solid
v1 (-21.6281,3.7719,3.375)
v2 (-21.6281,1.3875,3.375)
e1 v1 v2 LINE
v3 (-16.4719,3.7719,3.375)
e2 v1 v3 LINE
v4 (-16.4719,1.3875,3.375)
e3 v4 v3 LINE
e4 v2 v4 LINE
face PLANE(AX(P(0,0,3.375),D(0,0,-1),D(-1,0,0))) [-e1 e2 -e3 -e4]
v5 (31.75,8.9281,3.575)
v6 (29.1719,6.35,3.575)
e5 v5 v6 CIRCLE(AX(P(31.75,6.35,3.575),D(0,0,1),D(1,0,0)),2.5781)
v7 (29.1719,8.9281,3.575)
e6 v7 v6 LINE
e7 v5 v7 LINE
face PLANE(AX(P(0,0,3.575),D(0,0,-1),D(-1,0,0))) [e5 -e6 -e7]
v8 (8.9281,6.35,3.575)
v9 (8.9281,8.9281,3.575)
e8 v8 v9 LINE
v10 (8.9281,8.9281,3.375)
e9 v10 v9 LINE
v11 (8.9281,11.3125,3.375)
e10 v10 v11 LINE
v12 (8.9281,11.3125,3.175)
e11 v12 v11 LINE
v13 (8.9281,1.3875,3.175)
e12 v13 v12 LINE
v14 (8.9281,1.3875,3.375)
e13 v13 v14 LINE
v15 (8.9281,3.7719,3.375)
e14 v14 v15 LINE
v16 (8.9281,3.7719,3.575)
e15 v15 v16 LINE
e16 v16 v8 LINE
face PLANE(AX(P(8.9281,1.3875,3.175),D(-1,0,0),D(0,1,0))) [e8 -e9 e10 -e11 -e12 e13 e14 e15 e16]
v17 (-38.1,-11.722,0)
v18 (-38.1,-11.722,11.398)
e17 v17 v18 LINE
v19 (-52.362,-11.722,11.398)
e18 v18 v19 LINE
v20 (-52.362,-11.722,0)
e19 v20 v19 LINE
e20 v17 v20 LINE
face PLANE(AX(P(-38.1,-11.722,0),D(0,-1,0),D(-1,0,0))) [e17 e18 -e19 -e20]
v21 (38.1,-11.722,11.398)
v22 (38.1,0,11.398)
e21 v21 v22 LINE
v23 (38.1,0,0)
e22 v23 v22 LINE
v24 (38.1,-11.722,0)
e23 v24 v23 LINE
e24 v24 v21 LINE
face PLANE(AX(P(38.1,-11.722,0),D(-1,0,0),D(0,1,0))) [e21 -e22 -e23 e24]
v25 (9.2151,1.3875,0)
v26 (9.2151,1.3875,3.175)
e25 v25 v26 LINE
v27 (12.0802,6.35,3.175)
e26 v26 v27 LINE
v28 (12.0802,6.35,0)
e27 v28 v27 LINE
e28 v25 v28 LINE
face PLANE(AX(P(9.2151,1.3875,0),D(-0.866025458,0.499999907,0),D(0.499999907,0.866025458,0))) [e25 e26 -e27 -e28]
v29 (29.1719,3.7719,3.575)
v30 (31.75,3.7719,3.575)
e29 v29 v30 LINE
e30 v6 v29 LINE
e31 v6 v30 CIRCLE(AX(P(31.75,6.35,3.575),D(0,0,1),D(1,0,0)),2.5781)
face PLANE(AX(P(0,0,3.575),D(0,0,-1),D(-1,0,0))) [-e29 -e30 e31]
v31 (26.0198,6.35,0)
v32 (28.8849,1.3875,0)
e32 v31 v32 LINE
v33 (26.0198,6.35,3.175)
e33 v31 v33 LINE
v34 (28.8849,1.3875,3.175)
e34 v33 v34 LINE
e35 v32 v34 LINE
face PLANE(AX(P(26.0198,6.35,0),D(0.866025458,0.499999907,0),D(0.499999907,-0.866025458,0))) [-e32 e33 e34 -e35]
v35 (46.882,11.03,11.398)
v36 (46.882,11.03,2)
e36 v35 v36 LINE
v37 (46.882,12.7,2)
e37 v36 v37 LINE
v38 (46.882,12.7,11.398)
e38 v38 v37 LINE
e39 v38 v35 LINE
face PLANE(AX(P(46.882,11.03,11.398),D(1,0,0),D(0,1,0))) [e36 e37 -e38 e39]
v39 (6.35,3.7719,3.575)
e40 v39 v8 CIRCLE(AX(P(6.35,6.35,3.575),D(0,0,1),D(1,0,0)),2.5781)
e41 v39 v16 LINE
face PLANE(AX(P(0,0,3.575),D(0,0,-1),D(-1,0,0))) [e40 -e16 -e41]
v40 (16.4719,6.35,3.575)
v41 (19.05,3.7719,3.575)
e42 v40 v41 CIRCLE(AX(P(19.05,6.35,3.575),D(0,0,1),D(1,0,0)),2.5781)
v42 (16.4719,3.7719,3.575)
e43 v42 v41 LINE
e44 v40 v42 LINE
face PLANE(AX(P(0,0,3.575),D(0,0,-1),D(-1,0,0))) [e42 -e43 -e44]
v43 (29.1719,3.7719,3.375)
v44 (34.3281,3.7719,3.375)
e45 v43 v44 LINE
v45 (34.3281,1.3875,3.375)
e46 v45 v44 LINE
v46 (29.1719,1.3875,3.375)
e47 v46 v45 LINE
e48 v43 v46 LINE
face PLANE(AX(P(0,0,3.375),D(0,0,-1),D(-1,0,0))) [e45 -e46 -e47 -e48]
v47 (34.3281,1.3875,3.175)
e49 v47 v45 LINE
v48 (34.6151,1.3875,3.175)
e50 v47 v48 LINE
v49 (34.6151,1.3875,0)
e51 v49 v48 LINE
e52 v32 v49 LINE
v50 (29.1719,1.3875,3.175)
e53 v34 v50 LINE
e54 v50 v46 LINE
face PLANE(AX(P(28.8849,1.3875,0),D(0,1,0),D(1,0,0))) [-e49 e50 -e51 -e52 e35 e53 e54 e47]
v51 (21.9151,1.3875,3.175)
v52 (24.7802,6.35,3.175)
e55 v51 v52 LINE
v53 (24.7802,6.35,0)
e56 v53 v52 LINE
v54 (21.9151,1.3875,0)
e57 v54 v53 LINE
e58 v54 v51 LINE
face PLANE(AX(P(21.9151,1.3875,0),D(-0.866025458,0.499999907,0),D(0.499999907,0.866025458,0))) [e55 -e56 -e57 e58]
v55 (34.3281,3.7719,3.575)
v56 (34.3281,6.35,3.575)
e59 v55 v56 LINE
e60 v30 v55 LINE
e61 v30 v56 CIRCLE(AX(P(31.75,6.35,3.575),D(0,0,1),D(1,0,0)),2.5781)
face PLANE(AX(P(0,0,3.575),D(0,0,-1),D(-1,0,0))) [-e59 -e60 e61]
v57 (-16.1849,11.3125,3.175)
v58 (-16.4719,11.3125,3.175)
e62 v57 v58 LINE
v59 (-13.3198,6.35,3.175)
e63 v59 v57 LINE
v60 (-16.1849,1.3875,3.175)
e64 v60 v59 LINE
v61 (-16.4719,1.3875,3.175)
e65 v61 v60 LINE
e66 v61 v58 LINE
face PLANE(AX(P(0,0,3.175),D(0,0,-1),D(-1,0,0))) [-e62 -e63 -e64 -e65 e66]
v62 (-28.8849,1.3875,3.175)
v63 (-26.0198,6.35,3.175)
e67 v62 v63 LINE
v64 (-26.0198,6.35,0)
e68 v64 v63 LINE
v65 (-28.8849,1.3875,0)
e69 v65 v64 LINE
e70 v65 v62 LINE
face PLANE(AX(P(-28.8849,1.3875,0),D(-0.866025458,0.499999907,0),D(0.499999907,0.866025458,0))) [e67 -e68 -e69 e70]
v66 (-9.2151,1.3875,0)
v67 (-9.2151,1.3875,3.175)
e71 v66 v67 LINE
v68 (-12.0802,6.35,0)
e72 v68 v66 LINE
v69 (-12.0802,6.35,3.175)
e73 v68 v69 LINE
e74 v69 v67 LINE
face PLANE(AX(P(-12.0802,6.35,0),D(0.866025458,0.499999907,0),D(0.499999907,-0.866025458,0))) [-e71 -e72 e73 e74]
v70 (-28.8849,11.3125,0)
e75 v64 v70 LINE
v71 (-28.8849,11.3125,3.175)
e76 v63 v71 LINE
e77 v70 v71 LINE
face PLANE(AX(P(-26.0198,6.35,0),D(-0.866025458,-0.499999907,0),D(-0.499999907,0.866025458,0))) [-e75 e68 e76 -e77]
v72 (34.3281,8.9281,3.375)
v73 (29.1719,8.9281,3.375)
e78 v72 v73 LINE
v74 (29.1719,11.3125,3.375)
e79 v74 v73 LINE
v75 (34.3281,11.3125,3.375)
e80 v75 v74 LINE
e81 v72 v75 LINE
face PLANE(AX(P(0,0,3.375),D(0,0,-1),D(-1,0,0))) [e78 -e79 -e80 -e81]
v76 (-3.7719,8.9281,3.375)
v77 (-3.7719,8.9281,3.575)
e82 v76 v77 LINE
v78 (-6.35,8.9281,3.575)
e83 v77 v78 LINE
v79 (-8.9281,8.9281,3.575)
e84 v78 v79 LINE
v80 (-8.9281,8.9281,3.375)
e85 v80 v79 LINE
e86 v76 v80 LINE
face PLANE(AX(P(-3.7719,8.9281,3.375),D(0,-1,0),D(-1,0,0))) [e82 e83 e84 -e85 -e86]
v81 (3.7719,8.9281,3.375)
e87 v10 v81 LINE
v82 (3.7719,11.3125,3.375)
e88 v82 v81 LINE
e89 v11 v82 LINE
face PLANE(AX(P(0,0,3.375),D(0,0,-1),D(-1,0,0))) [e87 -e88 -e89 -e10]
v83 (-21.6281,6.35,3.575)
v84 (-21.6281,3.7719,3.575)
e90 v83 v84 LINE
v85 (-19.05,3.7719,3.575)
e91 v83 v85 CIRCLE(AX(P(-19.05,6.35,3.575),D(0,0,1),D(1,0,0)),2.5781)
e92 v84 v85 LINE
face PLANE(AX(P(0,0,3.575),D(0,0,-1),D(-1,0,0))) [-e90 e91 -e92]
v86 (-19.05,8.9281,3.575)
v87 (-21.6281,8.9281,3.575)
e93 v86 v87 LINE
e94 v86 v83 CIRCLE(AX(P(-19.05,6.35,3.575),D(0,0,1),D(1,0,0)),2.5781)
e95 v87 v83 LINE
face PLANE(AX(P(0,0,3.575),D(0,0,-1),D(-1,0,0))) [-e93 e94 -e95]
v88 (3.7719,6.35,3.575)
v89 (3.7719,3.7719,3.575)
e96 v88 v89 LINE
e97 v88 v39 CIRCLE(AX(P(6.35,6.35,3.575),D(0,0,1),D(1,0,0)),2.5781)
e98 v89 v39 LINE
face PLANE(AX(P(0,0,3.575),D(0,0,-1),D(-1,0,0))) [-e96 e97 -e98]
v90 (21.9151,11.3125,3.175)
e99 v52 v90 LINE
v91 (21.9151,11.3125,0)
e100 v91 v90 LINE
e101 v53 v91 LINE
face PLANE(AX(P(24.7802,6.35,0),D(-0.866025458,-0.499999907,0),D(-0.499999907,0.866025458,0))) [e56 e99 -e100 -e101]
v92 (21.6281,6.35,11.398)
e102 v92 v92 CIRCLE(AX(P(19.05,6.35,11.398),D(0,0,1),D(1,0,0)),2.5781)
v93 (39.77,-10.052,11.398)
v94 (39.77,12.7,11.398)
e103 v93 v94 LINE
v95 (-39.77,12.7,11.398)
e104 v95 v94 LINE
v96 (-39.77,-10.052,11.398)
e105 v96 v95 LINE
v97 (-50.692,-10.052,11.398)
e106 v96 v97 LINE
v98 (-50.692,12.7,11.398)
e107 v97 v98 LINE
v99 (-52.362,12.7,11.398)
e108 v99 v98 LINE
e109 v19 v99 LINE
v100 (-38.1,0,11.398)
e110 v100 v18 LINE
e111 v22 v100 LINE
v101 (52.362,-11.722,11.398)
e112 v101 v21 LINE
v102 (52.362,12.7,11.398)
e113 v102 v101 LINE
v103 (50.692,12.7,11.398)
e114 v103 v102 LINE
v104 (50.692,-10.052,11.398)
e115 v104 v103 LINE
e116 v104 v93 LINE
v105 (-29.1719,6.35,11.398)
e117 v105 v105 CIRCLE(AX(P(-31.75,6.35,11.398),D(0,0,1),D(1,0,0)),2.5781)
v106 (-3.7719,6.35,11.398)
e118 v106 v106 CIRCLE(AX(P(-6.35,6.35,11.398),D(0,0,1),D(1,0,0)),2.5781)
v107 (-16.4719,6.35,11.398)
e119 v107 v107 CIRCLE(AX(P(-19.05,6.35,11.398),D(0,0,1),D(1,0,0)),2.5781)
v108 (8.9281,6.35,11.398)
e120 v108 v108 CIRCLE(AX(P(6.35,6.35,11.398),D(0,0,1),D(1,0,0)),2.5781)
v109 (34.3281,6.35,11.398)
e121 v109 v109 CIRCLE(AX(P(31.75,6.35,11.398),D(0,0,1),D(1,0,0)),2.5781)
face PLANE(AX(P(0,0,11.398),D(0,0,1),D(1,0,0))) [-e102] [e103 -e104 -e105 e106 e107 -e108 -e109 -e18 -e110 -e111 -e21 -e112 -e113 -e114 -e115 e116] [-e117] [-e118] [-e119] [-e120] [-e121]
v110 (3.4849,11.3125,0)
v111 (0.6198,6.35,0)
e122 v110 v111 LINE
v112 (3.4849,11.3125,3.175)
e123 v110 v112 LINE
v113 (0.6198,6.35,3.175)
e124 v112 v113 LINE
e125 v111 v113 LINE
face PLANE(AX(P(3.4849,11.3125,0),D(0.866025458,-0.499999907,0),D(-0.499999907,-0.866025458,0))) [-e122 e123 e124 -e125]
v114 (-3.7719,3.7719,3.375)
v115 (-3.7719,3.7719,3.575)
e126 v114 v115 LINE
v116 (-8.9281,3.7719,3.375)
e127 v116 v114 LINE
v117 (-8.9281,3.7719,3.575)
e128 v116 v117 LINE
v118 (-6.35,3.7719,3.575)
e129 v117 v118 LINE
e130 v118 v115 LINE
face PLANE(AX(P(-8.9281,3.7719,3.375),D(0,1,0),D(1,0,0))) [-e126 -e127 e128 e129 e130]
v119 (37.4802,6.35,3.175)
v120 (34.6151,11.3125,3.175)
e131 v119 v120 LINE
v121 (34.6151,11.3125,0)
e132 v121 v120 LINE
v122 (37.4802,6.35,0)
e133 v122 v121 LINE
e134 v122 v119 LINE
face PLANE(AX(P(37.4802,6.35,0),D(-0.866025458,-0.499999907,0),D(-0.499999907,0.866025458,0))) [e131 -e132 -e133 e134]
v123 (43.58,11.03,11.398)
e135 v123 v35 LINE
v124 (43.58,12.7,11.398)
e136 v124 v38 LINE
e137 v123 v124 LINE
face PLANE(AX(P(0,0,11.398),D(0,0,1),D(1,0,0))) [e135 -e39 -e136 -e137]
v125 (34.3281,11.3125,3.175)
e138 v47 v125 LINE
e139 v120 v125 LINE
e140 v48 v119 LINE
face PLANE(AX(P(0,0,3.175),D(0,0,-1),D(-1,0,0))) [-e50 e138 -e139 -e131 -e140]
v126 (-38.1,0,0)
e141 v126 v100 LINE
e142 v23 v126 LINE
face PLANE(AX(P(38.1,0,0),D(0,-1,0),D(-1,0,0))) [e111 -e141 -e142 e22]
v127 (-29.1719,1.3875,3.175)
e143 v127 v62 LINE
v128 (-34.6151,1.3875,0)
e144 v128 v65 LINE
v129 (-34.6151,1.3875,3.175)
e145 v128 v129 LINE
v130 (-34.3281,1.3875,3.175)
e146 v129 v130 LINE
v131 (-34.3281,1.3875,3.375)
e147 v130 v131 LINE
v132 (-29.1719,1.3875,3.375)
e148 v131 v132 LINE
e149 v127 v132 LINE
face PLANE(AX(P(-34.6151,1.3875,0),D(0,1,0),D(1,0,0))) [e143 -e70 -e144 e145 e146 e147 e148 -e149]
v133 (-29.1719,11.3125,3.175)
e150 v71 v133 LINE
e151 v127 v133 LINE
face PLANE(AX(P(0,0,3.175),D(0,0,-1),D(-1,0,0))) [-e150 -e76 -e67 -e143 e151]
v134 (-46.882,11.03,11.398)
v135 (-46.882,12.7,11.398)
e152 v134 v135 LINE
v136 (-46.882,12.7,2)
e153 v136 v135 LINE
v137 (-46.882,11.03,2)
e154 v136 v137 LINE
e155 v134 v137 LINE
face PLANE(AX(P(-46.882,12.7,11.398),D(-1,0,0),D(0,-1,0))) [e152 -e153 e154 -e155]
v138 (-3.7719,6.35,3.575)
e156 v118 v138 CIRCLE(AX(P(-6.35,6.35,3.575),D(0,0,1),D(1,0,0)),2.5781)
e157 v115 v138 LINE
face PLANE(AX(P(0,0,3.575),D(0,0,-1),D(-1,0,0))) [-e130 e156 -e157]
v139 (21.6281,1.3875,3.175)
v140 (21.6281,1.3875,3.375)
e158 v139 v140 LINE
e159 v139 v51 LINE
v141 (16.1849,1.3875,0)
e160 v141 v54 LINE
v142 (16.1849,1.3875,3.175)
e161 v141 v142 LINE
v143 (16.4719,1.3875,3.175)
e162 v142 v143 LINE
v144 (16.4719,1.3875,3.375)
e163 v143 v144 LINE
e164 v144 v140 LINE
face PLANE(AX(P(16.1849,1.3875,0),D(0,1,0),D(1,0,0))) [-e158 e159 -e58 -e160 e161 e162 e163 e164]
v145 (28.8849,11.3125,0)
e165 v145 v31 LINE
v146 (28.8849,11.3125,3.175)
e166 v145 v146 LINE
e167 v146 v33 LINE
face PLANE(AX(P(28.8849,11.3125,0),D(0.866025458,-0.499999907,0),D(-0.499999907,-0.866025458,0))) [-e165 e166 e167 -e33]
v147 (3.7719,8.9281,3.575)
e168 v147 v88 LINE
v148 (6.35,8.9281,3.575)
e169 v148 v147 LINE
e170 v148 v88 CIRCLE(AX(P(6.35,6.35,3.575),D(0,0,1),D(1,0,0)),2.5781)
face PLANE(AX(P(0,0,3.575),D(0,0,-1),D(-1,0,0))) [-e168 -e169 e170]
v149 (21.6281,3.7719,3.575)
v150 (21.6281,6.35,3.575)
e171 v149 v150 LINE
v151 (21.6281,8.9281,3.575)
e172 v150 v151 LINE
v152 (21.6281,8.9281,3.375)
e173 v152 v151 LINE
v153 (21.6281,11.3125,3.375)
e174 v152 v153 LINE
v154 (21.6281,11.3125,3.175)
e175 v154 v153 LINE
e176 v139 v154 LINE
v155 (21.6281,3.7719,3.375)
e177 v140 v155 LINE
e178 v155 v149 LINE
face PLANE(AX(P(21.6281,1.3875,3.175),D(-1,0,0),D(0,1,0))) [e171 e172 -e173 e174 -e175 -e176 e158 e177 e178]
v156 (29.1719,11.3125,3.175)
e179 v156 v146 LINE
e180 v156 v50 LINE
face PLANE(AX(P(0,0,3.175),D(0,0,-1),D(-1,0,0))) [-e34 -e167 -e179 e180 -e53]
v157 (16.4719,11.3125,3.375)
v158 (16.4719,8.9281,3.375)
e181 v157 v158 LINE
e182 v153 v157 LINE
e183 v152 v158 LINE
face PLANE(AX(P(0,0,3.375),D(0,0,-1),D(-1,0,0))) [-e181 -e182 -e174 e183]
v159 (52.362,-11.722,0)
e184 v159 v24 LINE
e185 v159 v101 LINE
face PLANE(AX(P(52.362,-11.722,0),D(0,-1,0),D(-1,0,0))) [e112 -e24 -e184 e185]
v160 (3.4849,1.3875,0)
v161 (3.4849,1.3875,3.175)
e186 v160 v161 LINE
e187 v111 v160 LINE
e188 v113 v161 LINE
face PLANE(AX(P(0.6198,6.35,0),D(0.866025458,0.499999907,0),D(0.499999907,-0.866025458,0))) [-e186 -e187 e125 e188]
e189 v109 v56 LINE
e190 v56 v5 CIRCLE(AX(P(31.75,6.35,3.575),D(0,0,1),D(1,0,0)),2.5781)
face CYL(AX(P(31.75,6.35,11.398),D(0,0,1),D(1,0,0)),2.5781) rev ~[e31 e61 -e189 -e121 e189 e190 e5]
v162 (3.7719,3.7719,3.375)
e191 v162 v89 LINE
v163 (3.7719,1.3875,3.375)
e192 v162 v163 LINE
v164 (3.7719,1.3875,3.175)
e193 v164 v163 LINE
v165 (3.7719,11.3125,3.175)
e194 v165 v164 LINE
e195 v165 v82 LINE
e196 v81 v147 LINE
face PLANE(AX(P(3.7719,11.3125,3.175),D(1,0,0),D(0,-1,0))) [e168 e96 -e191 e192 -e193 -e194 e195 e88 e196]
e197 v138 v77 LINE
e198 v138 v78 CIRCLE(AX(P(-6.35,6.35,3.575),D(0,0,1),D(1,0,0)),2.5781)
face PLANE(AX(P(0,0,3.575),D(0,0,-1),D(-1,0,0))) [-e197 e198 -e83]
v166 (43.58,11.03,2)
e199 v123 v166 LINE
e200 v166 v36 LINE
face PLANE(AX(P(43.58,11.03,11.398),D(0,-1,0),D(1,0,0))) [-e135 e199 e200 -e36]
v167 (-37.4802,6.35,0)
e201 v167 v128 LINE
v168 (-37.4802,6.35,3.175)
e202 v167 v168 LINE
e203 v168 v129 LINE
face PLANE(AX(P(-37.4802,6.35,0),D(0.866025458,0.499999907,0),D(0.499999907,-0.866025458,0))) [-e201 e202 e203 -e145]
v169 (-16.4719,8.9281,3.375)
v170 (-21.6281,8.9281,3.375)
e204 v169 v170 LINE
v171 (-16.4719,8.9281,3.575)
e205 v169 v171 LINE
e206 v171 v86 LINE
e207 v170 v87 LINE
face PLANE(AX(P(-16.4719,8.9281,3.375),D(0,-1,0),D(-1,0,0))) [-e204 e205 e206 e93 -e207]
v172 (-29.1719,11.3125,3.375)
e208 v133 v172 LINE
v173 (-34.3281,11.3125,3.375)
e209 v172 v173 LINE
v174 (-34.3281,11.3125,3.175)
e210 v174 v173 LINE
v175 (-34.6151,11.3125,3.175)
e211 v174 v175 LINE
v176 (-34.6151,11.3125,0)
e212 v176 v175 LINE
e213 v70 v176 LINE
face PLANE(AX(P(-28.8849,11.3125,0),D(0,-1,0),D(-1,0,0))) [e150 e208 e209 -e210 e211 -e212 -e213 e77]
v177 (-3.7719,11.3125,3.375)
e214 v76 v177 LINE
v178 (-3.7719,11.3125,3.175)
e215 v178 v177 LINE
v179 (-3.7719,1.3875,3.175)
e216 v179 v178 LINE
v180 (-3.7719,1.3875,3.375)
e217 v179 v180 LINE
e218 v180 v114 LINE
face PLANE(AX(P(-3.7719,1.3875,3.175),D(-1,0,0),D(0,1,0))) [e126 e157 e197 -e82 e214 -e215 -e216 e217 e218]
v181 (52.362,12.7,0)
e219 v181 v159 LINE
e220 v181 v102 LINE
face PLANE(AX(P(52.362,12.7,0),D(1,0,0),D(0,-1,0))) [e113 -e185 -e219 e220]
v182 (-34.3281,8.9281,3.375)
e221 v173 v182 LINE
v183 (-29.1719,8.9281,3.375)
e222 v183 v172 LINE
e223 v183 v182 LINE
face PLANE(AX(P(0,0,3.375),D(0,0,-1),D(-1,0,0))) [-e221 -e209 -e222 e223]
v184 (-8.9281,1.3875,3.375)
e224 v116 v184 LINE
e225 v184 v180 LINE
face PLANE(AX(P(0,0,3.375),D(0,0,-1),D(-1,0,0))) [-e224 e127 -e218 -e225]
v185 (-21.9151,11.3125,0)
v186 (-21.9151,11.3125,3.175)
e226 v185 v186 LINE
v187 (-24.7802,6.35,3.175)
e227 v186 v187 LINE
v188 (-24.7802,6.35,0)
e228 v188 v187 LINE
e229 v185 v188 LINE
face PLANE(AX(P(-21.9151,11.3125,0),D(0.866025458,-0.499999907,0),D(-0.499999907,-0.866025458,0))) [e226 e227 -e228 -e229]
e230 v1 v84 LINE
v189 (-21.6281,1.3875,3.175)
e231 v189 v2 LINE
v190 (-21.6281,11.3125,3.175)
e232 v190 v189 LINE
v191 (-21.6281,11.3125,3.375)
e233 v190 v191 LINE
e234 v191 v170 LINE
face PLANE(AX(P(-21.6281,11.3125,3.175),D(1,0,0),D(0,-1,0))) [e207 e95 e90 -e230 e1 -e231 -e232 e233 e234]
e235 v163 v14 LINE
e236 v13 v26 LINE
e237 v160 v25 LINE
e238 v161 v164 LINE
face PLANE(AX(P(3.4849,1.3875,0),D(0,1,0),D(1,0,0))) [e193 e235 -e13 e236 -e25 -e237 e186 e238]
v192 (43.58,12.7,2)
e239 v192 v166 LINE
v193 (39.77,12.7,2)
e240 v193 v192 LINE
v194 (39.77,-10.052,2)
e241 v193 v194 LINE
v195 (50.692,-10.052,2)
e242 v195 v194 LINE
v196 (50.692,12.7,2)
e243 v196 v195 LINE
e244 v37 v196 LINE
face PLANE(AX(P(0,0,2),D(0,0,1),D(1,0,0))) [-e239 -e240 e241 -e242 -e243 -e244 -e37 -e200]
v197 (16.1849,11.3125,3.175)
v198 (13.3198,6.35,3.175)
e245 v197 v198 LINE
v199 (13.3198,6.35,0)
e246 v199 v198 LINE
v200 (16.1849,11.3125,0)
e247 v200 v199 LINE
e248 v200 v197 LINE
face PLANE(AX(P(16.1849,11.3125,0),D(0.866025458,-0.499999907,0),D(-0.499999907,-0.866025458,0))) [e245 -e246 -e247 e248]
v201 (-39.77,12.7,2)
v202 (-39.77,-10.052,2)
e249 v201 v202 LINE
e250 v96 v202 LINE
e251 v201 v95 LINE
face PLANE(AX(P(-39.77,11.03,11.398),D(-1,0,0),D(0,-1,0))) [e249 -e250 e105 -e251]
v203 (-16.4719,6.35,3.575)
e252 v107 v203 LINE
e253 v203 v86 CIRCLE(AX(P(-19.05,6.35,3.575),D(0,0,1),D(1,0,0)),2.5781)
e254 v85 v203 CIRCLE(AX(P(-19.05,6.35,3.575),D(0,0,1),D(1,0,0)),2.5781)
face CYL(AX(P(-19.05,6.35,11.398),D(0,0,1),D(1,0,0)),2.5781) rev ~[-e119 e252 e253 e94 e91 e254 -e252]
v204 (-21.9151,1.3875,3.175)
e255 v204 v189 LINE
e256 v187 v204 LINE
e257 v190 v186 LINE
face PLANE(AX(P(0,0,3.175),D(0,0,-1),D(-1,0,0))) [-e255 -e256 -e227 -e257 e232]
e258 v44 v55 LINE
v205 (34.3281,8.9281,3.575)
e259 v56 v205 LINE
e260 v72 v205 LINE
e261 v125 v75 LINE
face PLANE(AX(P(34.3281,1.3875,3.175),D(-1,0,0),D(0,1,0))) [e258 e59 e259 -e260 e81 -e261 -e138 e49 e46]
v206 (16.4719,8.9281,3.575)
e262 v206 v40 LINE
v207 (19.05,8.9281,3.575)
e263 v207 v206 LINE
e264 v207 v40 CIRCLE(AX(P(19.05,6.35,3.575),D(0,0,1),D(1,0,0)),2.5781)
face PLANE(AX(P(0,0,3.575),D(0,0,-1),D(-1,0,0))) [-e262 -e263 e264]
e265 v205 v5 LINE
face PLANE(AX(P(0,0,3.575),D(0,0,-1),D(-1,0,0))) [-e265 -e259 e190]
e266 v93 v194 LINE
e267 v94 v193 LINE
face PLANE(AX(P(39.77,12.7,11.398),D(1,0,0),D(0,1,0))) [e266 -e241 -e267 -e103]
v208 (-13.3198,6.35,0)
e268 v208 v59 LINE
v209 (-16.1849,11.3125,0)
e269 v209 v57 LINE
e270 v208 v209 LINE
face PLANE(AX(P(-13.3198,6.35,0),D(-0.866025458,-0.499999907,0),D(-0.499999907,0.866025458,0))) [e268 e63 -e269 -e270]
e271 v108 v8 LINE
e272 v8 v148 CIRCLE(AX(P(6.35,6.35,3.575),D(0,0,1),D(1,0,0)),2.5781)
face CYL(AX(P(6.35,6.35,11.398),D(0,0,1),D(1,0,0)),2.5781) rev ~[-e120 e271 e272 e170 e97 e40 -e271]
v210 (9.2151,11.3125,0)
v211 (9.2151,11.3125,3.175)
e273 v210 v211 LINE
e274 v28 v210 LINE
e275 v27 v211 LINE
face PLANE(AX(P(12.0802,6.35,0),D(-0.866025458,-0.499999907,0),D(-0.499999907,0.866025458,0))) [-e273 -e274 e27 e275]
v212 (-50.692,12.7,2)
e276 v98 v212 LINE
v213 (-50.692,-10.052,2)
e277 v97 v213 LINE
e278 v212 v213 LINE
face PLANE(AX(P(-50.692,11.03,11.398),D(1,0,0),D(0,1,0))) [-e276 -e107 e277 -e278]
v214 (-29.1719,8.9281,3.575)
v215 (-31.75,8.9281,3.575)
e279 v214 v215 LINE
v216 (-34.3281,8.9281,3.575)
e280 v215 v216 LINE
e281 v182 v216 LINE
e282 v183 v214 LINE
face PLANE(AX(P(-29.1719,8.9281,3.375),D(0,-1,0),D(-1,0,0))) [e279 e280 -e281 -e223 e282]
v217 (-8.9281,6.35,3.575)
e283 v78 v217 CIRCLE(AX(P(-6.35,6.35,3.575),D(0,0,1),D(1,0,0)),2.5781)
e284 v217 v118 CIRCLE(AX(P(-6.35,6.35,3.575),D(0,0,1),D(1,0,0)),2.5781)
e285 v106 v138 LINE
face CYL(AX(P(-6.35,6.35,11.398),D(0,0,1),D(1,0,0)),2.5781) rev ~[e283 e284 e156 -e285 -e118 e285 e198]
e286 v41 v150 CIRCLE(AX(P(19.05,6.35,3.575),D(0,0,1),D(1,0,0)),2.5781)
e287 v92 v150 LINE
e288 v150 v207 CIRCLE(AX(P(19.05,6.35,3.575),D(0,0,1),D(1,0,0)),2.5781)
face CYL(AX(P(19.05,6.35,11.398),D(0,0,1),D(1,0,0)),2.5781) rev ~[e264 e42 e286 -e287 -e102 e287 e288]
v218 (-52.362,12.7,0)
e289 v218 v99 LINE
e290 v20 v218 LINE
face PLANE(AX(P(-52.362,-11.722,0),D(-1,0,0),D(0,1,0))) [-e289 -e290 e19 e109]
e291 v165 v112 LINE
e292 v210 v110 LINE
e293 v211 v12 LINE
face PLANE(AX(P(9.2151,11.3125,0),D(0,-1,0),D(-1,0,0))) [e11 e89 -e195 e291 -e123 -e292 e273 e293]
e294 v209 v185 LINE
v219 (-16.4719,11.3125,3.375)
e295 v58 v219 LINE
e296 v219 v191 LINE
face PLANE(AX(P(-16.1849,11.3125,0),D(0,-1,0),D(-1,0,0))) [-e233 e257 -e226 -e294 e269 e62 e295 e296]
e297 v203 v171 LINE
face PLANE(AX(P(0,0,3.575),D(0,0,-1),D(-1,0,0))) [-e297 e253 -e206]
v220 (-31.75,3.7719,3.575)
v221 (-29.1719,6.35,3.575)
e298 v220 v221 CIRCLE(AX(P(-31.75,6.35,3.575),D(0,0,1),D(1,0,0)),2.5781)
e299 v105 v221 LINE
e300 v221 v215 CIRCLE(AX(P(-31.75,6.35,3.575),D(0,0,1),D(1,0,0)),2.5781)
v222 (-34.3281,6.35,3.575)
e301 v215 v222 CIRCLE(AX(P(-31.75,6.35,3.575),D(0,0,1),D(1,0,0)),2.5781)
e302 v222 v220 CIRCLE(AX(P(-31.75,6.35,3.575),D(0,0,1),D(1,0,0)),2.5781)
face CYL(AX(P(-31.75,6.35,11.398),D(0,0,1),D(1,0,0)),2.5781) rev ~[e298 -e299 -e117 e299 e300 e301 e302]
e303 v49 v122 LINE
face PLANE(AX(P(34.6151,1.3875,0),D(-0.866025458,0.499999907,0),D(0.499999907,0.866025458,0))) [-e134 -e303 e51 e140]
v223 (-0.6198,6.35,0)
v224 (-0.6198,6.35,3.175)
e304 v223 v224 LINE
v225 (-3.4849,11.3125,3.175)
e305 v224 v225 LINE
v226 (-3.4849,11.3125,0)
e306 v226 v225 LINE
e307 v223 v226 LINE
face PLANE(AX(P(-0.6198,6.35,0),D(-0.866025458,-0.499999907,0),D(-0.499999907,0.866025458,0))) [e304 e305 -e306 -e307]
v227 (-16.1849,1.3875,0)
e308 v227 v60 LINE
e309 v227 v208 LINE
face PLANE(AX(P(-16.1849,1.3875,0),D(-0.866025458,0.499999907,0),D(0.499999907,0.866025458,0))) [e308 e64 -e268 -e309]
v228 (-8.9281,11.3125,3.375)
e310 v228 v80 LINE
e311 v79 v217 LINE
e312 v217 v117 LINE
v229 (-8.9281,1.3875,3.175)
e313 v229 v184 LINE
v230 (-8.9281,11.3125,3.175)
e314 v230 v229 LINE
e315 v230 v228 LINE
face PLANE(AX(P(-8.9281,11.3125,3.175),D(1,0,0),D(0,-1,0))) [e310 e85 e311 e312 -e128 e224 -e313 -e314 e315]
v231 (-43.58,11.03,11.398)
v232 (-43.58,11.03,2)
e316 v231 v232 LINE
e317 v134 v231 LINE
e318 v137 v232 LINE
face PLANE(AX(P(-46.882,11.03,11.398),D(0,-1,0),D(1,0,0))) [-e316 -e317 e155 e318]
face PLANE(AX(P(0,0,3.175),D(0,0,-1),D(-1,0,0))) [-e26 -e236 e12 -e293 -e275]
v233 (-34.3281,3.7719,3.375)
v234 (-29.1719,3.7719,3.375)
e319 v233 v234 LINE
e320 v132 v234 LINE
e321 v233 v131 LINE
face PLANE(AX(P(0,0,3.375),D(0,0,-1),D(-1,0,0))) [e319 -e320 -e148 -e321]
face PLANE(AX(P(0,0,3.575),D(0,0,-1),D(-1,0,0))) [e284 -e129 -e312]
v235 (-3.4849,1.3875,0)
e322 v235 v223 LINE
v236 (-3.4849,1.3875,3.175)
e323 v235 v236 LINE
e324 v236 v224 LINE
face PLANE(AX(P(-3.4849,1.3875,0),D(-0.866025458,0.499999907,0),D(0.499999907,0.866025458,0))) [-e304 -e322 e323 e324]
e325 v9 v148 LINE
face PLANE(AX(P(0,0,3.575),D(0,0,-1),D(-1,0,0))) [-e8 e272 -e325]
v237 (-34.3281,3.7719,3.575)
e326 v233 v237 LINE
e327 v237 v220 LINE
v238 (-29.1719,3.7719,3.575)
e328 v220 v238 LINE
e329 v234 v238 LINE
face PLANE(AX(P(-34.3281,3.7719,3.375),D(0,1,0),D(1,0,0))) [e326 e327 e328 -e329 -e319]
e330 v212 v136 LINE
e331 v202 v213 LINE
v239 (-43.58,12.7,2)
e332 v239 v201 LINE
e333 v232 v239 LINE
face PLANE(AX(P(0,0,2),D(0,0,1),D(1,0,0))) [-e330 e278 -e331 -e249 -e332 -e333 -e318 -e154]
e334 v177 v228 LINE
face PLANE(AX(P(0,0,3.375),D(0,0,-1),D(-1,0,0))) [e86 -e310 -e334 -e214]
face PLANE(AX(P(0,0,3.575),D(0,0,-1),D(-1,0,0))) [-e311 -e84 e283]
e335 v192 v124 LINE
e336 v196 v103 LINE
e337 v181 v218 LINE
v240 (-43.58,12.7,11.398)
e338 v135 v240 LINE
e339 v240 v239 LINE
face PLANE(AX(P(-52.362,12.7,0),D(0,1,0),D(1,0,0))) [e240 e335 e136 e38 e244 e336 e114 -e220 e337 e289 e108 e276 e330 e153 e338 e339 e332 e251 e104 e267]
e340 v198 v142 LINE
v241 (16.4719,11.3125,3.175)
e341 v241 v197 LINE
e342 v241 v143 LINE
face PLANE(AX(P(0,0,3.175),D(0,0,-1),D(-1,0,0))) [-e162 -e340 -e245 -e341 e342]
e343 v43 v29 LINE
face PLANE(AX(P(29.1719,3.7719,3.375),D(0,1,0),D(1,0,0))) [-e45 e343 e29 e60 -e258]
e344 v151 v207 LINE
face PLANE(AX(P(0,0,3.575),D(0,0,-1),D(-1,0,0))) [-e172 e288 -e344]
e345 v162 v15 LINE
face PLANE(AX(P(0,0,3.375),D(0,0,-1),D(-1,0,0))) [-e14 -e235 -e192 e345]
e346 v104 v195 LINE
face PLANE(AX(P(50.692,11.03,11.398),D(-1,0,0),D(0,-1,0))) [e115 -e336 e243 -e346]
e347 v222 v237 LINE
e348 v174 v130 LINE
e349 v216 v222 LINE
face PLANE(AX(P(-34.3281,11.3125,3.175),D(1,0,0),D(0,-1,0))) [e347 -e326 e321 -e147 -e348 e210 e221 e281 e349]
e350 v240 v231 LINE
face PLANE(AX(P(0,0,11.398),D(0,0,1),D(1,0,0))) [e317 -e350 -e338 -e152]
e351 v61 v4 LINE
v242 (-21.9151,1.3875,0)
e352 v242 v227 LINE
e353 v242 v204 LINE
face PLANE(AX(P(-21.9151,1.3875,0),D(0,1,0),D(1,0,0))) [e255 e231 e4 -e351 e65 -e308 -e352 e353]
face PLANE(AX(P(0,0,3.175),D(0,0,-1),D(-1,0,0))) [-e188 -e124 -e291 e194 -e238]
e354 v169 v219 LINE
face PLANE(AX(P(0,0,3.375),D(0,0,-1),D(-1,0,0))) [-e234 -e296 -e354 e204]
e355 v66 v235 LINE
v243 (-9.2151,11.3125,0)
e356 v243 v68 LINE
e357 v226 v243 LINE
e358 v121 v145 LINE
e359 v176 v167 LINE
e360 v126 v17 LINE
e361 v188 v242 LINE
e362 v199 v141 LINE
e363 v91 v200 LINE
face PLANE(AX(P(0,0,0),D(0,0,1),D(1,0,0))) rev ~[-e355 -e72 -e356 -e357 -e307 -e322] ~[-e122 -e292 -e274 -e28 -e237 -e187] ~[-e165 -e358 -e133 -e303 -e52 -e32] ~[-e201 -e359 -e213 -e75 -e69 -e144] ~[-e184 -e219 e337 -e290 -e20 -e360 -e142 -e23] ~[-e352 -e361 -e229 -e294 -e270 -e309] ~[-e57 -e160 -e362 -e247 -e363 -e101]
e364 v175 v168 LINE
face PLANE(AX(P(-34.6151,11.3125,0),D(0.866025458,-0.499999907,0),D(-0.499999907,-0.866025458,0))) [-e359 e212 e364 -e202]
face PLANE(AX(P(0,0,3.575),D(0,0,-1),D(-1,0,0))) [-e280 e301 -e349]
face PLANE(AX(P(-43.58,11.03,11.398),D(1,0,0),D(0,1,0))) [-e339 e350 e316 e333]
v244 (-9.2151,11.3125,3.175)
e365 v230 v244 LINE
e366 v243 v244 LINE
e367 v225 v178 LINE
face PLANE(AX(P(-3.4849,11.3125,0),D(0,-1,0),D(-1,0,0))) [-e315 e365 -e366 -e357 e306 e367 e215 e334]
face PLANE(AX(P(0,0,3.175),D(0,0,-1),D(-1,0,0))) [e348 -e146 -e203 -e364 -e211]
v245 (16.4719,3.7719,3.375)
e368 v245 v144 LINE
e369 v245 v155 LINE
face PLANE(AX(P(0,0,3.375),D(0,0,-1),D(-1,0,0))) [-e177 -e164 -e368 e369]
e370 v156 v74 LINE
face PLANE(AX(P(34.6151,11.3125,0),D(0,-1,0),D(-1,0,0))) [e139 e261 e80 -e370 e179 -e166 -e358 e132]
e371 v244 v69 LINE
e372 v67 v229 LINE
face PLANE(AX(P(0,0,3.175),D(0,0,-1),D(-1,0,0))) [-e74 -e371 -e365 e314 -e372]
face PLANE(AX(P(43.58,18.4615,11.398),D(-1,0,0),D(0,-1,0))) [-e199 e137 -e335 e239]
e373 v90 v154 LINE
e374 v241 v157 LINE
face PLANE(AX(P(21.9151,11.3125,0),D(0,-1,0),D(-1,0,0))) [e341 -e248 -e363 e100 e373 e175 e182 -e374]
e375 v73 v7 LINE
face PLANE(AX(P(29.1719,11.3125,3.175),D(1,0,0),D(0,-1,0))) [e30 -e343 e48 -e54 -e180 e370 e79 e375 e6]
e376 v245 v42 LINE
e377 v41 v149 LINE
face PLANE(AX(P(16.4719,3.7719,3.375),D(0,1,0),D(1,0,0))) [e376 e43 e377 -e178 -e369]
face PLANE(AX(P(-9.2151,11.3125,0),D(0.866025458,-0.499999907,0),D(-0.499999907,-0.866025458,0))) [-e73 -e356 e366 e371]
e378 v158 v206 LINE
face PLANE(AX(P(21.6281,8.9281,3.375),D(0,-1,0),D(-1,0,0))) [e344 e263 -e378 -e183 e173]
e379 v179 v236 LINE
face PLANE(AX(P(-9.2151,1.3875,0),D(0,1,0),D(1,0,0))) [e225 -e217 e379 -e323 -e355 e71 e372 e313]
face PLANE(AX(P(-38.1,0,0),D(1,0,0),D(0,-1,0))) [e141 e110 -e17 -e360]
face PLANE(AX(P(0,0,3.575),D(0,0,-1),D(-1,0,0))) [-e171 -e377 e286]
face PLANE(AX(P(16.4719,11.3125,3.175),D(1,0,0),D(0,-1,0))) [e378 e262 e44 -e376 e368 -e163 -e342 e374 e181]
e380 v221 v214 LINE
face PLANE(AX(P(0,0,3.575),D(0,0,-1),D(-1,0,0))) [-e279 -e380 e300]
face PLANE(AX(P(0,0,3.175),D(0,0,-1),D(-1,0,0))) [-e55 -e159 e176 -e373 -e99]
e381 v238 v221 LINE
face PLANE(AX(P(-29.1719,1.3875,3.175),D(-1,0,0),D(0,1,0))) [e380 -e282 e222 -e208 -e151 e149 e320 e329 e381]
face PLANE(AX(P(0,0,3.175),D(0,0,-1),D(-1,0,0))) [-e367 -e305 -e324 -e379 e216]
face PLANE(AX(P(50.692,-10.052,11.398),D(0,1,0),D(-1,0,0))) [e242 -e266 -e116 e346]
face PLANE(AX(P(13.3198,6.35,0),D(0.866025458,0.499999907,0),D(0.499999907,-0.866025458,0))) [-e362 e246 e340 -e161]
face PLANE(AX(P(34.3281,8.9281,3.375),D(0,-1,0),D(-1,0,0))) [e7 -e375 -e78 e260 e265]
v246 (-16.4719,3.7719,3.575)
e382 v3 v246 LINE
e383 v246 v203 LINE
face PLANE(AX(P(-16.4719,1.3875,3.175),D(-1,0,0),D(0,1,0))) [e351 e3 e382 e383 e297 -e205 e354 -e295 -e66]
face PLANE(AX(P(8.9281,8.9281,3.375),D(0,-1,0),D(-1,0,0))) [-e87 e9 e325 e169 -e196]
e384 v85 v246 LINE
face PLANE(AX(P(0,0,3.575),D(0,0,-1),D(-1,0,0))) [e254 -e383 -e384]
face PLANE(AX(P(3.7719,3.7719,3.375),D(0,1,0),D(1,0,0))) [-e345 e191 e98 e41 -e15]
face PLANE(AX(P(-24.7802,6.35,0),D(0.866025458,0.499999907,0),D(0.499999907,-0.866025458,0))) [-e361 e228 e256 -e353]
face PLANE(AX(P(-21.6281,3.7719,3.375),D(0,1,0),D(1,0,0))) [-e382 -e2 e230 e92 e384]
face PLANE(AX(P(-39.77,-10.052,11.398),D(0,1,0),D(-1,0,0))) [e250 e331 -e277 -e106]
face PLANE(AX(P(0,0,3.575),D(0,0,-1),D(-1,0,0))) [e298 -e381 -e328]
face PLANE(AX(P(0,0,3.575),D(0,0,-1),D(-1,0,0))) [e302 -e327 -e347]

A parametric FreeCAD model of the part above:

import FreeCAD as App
import Part
import Sketcher

V = App.Vector
Q = App.Units.Quantity


def add_polygon(sketch, points):
    """Adds a closed chain of lines whose ends are joined by coincident constraints."""
    first, n = sketch.GeometryCount, len(points)
    for a, b in zip(points, points[1:] + points[:1]):
        sketch.addGeometry(Part.LineSegment(App.Vector(*a, 0), App.Vector(*b, 0)), False)
    for i in range(n):
        sketch.addConstraint(Sketcher.Constraint("Coincident", first + i, 2, first + (i + 1) % n, 1))

doc = App.newDocument("Part")
body = doc.addObject("PartDesign::Body", "Body")

# Sketch on XY plane
sketch1 = body.newObject("Sketcher::SketchObject", "Sketch")
sketch1.AttachmentSupport = (doc.getObject("XY_Plane"), [""])
sketch1.MapMode = "FlatFace"
add_polygon(sketch1, [(-52.362, 12.7), (-52.362, -11.722), (-38.1, -11.722), (-38.1, 0), (38.1, 0), (38.1, -11.722), (52.362, -11.722), (52.362, 12.7)])  # lines 0-7
sketch1.addConstraint([
    Sketcher.Constraint("Vertical", 0),
    Sketcher.Constraint("Horizontal", 1),
    Sketcher.Constraint("Vertical", 2),
    Sketcher.Constraint("Horizontal", 3),
    Sketcher.Constraint("Vertical", 4),
    Sketcher.Constraint("Horizontal", 5),
    Sketcher.Constraint("Vertical", 6),
    Sketcher.Constraint("Horizontal", 7),
    Sketcher.Constraint("Symmetric", 2, 2, 3, 2, -1, 1),
    Sketcher.Constraint("Symmetric", 0, 2, 5, 2, -2),
    Sketcher.Constraint("DistanceX", 3, 1, 3, 2, Q("3 in")),
    Sketcher.Constraint("DistanceY", -1, 1, 6, 2, Q("0.5 in")),
    Sketcher.Constraint("DistanceX", 1, 1, 1, 2, Q("0.5615 in")),
    Sketcher.Constraint("DistanceY", 0, 2, 0, 1, Q("0.9615 in")),
])
pad1 = body.newObject("PartDesign::Pad", "Pad")
pad1.Profile = sketch1
pad1.Length = 11.398

# Sketch on XY plane
sketch2 = body.newObject("Sketcher::SketchObject", "Sketch001")
sketch2.AttachmentSupport = (doc.getObject("XY_Plane"), [""])
sketch2.MapMode = "FlatFace"
sketch2.AttachmentOffset = App.Placement(V(0, 0, 11.398), App.Rotation())
add_polygon(sketch2, [(-50.692, -10.052), (-39.77, -10.052), (-39.77, 18.6326), (-43.58, 18.6326), (-43.58, 11.03), (-46.882, 11.03), (-46.882, 18.6326), (-50.692, 18.6326)])  # lines 0-7
add_polygon(sketch2, [(39.77, 18.4615), (39.77, -10.052), (50.692, -10.052), (50.692, 18.4615), (46.882, 18.4615), (46.882, 11.03), (43.58, 11.03), (43.58, 18.4615)])  # lines 8-15
sketch2.addConstraint([
    Sketcher.Constraint("Horizontal", 0),
    Sketcher.Constraint("Vertical", 1),
    Sketcher.Constraint("Horizontal", 2),
    Sketcher.Constraint("Vertical", 3),
    Sketcher.Constraint("Horizontal", 4),
    Sketcher.Constraint("Vertical", 5),
    Sketcher.Constraint("Horizontal", 6),
    Sketcher.Constraint("Vertical", 7),
    Sketcher.Constraint("Vertical", 8),
    Sketcher.Constraint("Horizontal", 9),
    Sketcher.Constraint("Vertical", 10),
    Sketcher.Constraint("Horizontal", 11),
    Sketcher.Constraint("Vertical", 12),
    Sketcher.Constraint("Horizontal", 13),
    Sketcher.Constraint("Vertical", 14),
    Sketcher.Constraint("Horizontal", 15),
    Sketcher.Constraint("Symmetric", 0, 2, 8, 2, -2),
    Sketcher.Constraint("Symmetric", 4, 2, 12, 2, -2),
    Sketcher.Constraint("Horizontal", 2, 2, 5, 2),
    Sketcher.Constraint("Horizontal", 11, 2, 14, 2),
    Sketcher.Constraint("Equal", 2, 6),
    Sketcher.Constraint("Equal", 0, 9),
    Sketcher.Constraint("Equal", 4, 13),
    Sketcher.Constraint("DistanceX", 0, 1, 0, 2, Q("0.43 in")),
    Sketcher.Constraint("DistanceX", 4, 2, 4, 1, Q("0.13 in")),
    Sketcher.Constraint("DistanceY", 0, 2, 3, 2, Q("0.83 in")),
    Sketcher.Constraint("DistanceY", 1, 1, 1, 2, 28.6846),
    Sketcher.Constraint("DistanceY", 8, 2, 8, 1, 28.5135),
    Sketcher.Constraint("DistanceX", 0, 2, 8, 2, Q("3.1315 in")),
    Sketcher.Constraint("DistanceY", 0, 2, -1, 1, 10.052),
])
pocket1 = body.newObject("PartDesign::Pocket", "Pocket")
pocket1.Profile = sketch2
pocket1.Length = Q("0.37 in")

# Sketch on XY plane
sketch3 = body.newObject("Sketcher::SketchObject", "Sketch002")
sketch3.AttachmentSupport = (doc.getObject("XY_Plane"), [""])
sketch3.MapMode = "FlatFace"
sketch3.AttachmentOffset = App.Placement(V(0, 0, 11.398), App.Rotation())
sketch3.addGeometry([
    Part.Circle(V(-31.75, 6.35, 0), V(0, 0, 1), 2.5781),  # 0
    Part.Circle(V(-19.05, 6.35, 0), V(0, 0, 1), 2.5781),  # 1
    Part.Circle(V(-6.35, 6.35, 0), V(0, 0, 1), 2.5781),  # 2
    Part.Circle(V(6.35, 6.35, 0), V(0, 0, 1), 2.5781),  # 3
    Part.Circle(V(19.05, 6.35, 0), V(0, 0, 1), 2.5781),  # 4
    Part.Circle(V(31.75, 6.35, 0), V(0, 0, 1), 2.5781),  # 5
], False)
sketch3.addConstraint([
    Sketcher.Constraint("Equal", 0, 1),
    Sketcher.Constraint("Equal", 1, 2),
    Sketcher.Constraint("Equal", 2, 3),
    Sketcher.Constraint("Equal", 3, 4),
    Sketcher.Constraint("Equal", 4, 5),
    Sketcher.Constraint("Symmetric", 2, 3, 3, 3, -2),
    Sketcher.Constraint("Symmetric", 1, 3, 4, 3, -2),
    Sketcher.Constraint("Symmetric", 0, 3, 5, 3, -2),
    Sketcher.Constraint("Horizontal", 0, 3, 1, 3),
    Sketcher.Constraint("Horizontal", 1, 3, 2, 3),
    Sketcher.Constraint("Diameter", 0, Q("0.203 in")),
    Sketcher.Constraint("DistanceX", 0, 3, 2, 3, Q("1 in")),
    Sketcher.Constraint("DistanceX", 1, 3, 3, 3, Q("1 in")),
    Sketcher.Constraint("DistanceX", 0, 3, 1, 3, Q("0.5 in")),
    Sketcher.Constraint("DistanceY", -1, 1, 0, 3, Q("0.25 in")),
])
pocket2 = body.newObject("PartDesign::Pocket", "Pocket001")
pocket2.Profile = sketch3
pocket2.Type = "ThroughAll"

# Sketch on XY plane
sketch4 = body.newObject("Sketcher::SketchObject", "Sketch003")
sketch4.AttachmentSupport = (doc.getObject("XY_Plane"), [""])
sketch4.MapMode = "FlatFace"
add_polygon(sketch4, [(-34.6151, 11.3125), (-28.8849, 11.3125), (-26.0198, 6.35), (-28.8849, 1.3875), (-34.6151, 1.3875), (-37.4802, 6.35)])  # lines 0-5
add_polygon(sketch4, [(-21.9151, 11.3125), (-16.1849, 11.3125), (-13.3198, 6.35), (-16.1849, 1.3875), (-21.9151, 1.3875), (-24.7802, 6.35)])  # lines 6-11
add_polygon(sketch4, [(-9.2151, 11.3125), (-3.4849, 11.3125), (-0.6198, 6.35), (-3.4849, 1.3875), (-9.2151, 1.3875), (-12.0802, 6.35)])  # lines 12-17
add_polygon(sketch4, [(3.4849, 11.3125), (9.2151, 11.3125), (12.0802, 6.35), (9.2151, 1.3875), (3.4849, 1.3875), (0.6198, 6.35)])  # lines 18-23
add_polygon(sketch4, [(16.1849, 11.3125), (21.9151, 11.3125), (24.7802, 6.35), (21.9151, 1.3875), (16.1849, 1.3875), (13.3198, 6.35)])  # lines 24-29
add_polygon(sketch4, [(28.8849, 11.3125), (34.6151, 11.3125), (37.4802, 6.35), (34.6151, 1.3875), (28.8849, 1.3875), (26.0198, 6.35)])  # lines 30-35
sketch4.addConstraint([
    Sketcher.Constraint("Horizontal", 0),
    Sketcher.Constraint("Horizontal", 3),
    Sketcher.Constraint("Horizontal", 6),
    Sketcher.Constraint("Horizontal", 9),
    Sketcher.Constraint("Horizontal", 12),
    Sketcher.Constraint("Horizontal", 15),
    Sketcher.Constraint("Horizontal", 18),
    Sketcher.Constraint("Horizontal", 21),
    Sketcher.Constraint("Horizontal", 24),
    Sketcher.Constraint("Horizontal", 27),
    Sketcher.Constraint("Horizontal", 30),
    Sketcher.Constraint("Horizontal", 33),
    Sketcher.Constraint("Symmetric", 17, 2, 18, 2, -2),
    Sketcher.Constraint("Symmetric", 16, 2, 19, 2, -2),
    Sketcher.Constraint("Symmetric", 15, 2, 20, 2, -2),
    Sketcher.Constraint("Symmetric", 13, 2, 22, 2, -2),
    Sketcher.Constraint("Symmetric", 11, 2, 24, 2, -2),
    Sketcher.Constraint("Symmetric", 10, 2, 25, 2, -2),
    Sketcher.Constraint("Symmetric", 9, 2, 26, 2, -2),
    Sketcher.Constraint("Symmetric", 7, 2, 28, 2, -2),
    Sketcher.Constraint("Symmetric", 5, 2, 30, 2, -2),
    Sketcher.Constraint("Symmetric", 4, 2, 31, 2, -2),
    Sketcher.Constraint("Symmetric", 3, 2, 32, 2, -2),
    Sketcher.Constraint("Symmetric", 1, 2, 34, 2, -2),
    Sketcher.Constraint("Parallel", 1, 4),
    Sketcher.Constraint("Parallel", 2, 5),
    Sketcher.Constraint("Parallel", 4, 7),
    Sketcher.Constraint("Parallel", 5, 8),
    Sketcher.Constraint("Parallel", 7, 10),
    Sketcher.Constraint("Parallel", 8, 11),
    Sketcher.Constraint("Parallel", 10, 13),
    Sketcher.Constraint("Parallel", 11, 14),
    Sketcher.Constraint("Parallel", 13, 16),
    Sketcher.Constraint("Parallel", 14, 17),
    Sketcher.Constraint("Parallel", 16, 19),
    Sketcher.Constraint("Parallel", 19, 22),
    Sketcher.Constraint("Parallel", 20, 23),
    Sketcher.Constraint("Parallel", 25, 28),
    Sketcher.Constraint("Parallel", 26, 29),
    Sketcher.Constraint("Parallel", 31, 34),
    Sketcher.Constraint("Parallel", 32, 35),
    Sketcher.Constraint("Horizontal", 1, 2, 4, 2),
    Sketcher.Constraint("Horizontal", 5, 2, 6, 2),
    Sketcher.Constraint("Horizontal", 4, 2, 7, 2),
    Sketcher.Constraint("Horizontal", 3, 2, 8, 2),
    Sketcher.Constraint("Horizontal", 7, 2, 10, 2),
    Sketcher.Constraint("Horizontal", 11, 2, 12, 2),
    Sketcher.Constraint("Horizontal", 10, 2, 13, 2),
    Sketcher.Constraint("Horizontal", 9, 2, 14, 2),
    Sketcher.Constraint("Horizontal", 13, 2, 16, 2),
    Sketcher.Constraint("Vertical", 0, 2, 2, 2),
    Sketcher.Constraint("Equal", 3, 6),
    Sketcher.Constraint("Equal", 9, 12),
    Sketcher.Constraint("DistanceX", 0, 2, 6, 2, Q("0.5 in")),
    Sketcher.Constraint("DistanceX", 6, 2, 12, 2, Q("0.5 in")),
    Sketcher.Constraint("DistanceX", 12, 2, 18, 2, Q("0.5 in")),
    Sketcher.Constraint("Angle", 1, Q("-60 deg")),
    Sketcher.Constraint("DistanceY", -1, 1, 1, 2, Q("0.25 in")),
    Sketcher.Constraint("DistanceY", 2, 2, 0, 2, 9.925),
    Sketcher.Constraint("DistanceX", 0, 1, 0, 2, Q("0.2256 in")),
])
pocket3 = body.newObject("PartDesign::Pocket", "Pocket002")
pocket3.Profile = sketch4
pocket3.Length = Q("0.125 in")
pocket3.Reversed = True

# Sketch on XY plane
sketch5 = body.newObject("Sketcher::SketchObject", "Sketch004")
sketch5.AttachmentSupport = (doc.getObject("XY_Plane"), [""])
sketch5.MapMode = "FlatFace"
sketch5.AttachmentOffset = App.Placement(V(0, 0, 0.125 * 25.4), App.Rotation())
add_polygon(sketch5, [(29.1719, 11.3125), (34.3281, 11.3125), (34.3281, 1.3875), (29.1719, 1.3875)])  # lines 0-3
add_polygon(sketch5, [(16.4719, 11.3125), (21.6281, 11.3125), (21.6281, 1.3875), (16.4719, 1.3875)])  # lines 4-7
add_polygon(sketch5, [(3.7719, 11.3125), (8.9281, 11.3125), (8.9281, 1.3875), (3.7719, 1.3875)])  # lines 8-11
add_polygon(sketch5, [(-8.9281, 11.3125), (-3.7719, 11.3125), (-3.7719, 1.3875), (-8.9281, 1.3875)])  # lines 12-15
add_polygon(sketch5, [(-21.6281, 11.3125), (-16.4719, 11.3125), (-16.4719, 1.3875), (-21.6281, 1.3875)])  # lines 16-19
add_polygon(sketch5, [(-34.3281, 11.3125), (-29.1719, 11.3125), (-29.1719, 1.3875), (-34.3281, 1.3875)])  # lines 20-23
sketch5.addConstraint([
    Sketcher.Constraint("Horizontal", 0),
    Sketcher.Constraint("Vertical", 1),
    Sketcher.Constraint("Horizontal", 2),
    Sketcher.Constraint("Vertical", 3),
    Sketcher.Constraint("Horizontal", 4),
    Sketcher.Constraint("Vertical", 5),
    Sketcher.Constraint("Horizontal", 6),
    Sketcher.Constraint("Vertical", 7),
    Sketcher.Constraint("Horizontal", 8),
    Sketcher.Constraint("Vertical", 9),
    Sketcher.Constraint("Horizontal", 10),
    Sketcher.Constraint("Vertical", 11),
    Sketcher.Constraint("Horizontal", 12),
    Sketcher.Constraint("Vertical", 13),
    Sketcher.Constraint("Horizontal", 14),
    Sketcher.Constraint("Vertical", 15),
    Sketcher.Constraint("Horizontal", 16),
    Sketcher.Constraint("Vertical", 17),
    Sketcher.Constraint("Horizontal", 18),
    Sketcher.Constraint("Vertical", 19),
    Sketcher.Constraint("Horizontal", 20),
    Sketcher.Constraint("Vertical", 21),
    Sketcher.Constraint("Horizontal", 22),
    Sketcher.Constraint("Vertical", 23),
    Sketcher.Constraint("Symmetric", 11, 2, 12, 2, -2),
    Sketcher.Constraint("Symmetric", 9, 2, 14, 2, -2),
    Sketcher.Constraint("Symmetric", 7, 2, 16, 2, -2),
    Sketcher.Constraint("Symmetric", 5, 2, 18, 2, -2),
    Sketcher.Constraint("Symmetric", 3, 2, 20, 2, -2),
    Sketcher.Constraint("Symmetric", 1, 2, 22, 2, -2),
    Sketcher.Constraint("Horizontal", 3, 2, 4, 2),
    Sketcher.Constraint("Horizontal", 2, 2, 5, 2),
    Sketcher.Constraint("Horizontal", 7, 2, 8, 2),
    Sketcher.Constraint("Horizontal", 6, 2, 9, 2),
    Sketcher.Constraint("Equal", 2, 4),
    Sketcher.Constraint("Equal", 6, 8),
    Sketcher.Constraint("DistanceX", 4, 2, 0, 2, Q("0.5 in")),
    Sketcher.Constraint("DistanceX", 8, 2, 4, 2, Q("0.5 in")),
    Sketcher.Constraint("DistanceX", 12, 2, 8, 2, Q("0.5 in")),
    Sketcher.Constraint("DistanceX", 0, 1, 0, 2, Q("0.203 in")),
    Sketcher.Constraint("DistanceY", 1, 2, 1, 1, 9.925),
    Sketcher.Constraint("DistanceY", -1, 1, 0, 2, 11.3125),
])
pocket4 = body.newObject("PartDesign::Pocket", "Pocket003")
pocket4.Profile = sketch5
pocket4.Length = 0.2
pocket4.Reversed = True

# Sketch on XY plane
sketch6 = body.newObject("Sketcher::SketchObject", "Sketch005")
sketch6.AttachmentSupport = (doc.getObject("XY_Plane"), [""])
sketch6.MapMode = "FlatFace"
sketch6.AttachmentOffset = App.Placement(V(0, 0, 3.375), App.Rotation())
add_polygon(sketch6, [(34.3281, 3.7719), (29.1719, 3.7719), (29.1719, 8.9281), (34.3281, 8.9281)])  # lines 0-3
add_polygon(sketch6, [(21.6281, 3.7719), (16.4719, 3.7719), (16.4719, 8.9281), (21.6281, 8.9281)])  # lines 4-7
add_polygon(sketch6, [(8.9281, 3.7719), (3.7719, 3.7719), (3.7719, 8.9281), (8.9281, 8.9281)])  # lines 8-11
add_polygon(sketch6, [(-3.7719, 3.7719), (-8.9281, 3.7719), (-8.9281, 8.9281), (-3.7719, 8.9281)])  # lines 12-15
add_polygon(sketch6, [(-16.4719, 3.7719), (-21.6281, 3.7719), (-21.6281, 8.9281), (-16.4719, 8.9281)])  # lines 16-19
add_polygon(sketch6, [(-29.1719, 3.7719), (-34.3281, 3.7719), (-34.3281, 8.9281), (-29.1719, 8.9281)])  # lines 20-23
sketch6.addConstraint([
    Sketcher.Constraint("Horizontal", 0),
    Sketcher.Constraint("Vertical", 1),
    Sketcher.Constraint("Horizontal", 2),
    Sketcher.Constraint("Vertical", 3),
    Sketcher.Constraint("Horizontal", 4),
    Sketcher.Constraint("Vertical", 5),
    Sketcher.Constraint("Horizontal", 6),
    Sketcher.Constraint("Vertical", 7),
    Sketcher.Constraint("Horizontal", 8),
    Sketcher.Constraint("Vertical", 9),
    Sketcher.Constraint("Horizontal", 10),
    Sketcher.Constraint("Vertical", 11),
    Sketcher.Constraint("Horizontal", 12),
    Sketcher.Constraint("Vertical", 13),
    Sketcher.Constraint("Horizontal", 14),
    Sketcher.Constraint("Vertical", 15),
    Sketcher.Constraint("Horizontal", 16),
    Sketcher.Constraint("Vertical", 17),
    Sketcher.Constraint("Horizontal", 18),
    Sketcher.Constraint("Vertical", 19),
    Sketcher.Constraint("Horizontal", 20),
    Sketcher.Constraint("Vertical", 21),
    Sketcher.Constraint("Horizontal", 22),
    Sketcher.Constraint("Vertical", 23),
    Sketcher.Constraint("Symmetric", 11, 2, 12, 2, -2),
    Sketcher.Constraint("Symmetric", 9, 2, 14, 2, -2),
    Sketcher.Constraint("Symmetric", 7, 2, 16, 2, -2),
    Sketcher.Constraint("Symmetric", 5, 2, 18, 2, -2),
    Sketcher.Constraint("Symmetric", 3, 2, 20, 2, -2),
    Sketcher.Constraint("Symmetric", 1, 2, 22, 2, -2),
    Sketcher.Constraint("Horizontal", 3, 2, 4, 2),
    Sketcher.Constraint("Horizontal", 2, 2, 5, 2),
    Sketcher.Constraint("Horizontal", 7, 2, 8, 2),
    Sketcher.Constraint("Horizontal", 6, 2, 9, 2),
    Sketcher.Constraint("Equal", 2, 4),
    Sketcher.Constraint("Equal", 6, 8),
    Sketcher.Constraint("Equal", 22, 1),
    Sketcher.Constraint("DistanceX", 8, 2, 0, 2, Q("1 in")),
    Sketcher.Constraint("DistanceX", 12, 2, 4, 2, Q("1 in")),
    Sketcher.Constraint("DistanceX", 4, 2, 0, 2, Q("0.5 in")),
    Sketcher.Constraint("DistanceX", 0, 2, 0, 1, Q("0.203 in")),
    Sketcher.Constraint("DistanceY", -1, 1, 0, 2, Q("0.1485 in")),
])
pocket5 = body.newObject("PartDesign::Pocket", "Pocket004")
pocket5.Profile = sketch6
pocket5.Length = 0.2
pocket5.Reversed = True

doc.recompute()
